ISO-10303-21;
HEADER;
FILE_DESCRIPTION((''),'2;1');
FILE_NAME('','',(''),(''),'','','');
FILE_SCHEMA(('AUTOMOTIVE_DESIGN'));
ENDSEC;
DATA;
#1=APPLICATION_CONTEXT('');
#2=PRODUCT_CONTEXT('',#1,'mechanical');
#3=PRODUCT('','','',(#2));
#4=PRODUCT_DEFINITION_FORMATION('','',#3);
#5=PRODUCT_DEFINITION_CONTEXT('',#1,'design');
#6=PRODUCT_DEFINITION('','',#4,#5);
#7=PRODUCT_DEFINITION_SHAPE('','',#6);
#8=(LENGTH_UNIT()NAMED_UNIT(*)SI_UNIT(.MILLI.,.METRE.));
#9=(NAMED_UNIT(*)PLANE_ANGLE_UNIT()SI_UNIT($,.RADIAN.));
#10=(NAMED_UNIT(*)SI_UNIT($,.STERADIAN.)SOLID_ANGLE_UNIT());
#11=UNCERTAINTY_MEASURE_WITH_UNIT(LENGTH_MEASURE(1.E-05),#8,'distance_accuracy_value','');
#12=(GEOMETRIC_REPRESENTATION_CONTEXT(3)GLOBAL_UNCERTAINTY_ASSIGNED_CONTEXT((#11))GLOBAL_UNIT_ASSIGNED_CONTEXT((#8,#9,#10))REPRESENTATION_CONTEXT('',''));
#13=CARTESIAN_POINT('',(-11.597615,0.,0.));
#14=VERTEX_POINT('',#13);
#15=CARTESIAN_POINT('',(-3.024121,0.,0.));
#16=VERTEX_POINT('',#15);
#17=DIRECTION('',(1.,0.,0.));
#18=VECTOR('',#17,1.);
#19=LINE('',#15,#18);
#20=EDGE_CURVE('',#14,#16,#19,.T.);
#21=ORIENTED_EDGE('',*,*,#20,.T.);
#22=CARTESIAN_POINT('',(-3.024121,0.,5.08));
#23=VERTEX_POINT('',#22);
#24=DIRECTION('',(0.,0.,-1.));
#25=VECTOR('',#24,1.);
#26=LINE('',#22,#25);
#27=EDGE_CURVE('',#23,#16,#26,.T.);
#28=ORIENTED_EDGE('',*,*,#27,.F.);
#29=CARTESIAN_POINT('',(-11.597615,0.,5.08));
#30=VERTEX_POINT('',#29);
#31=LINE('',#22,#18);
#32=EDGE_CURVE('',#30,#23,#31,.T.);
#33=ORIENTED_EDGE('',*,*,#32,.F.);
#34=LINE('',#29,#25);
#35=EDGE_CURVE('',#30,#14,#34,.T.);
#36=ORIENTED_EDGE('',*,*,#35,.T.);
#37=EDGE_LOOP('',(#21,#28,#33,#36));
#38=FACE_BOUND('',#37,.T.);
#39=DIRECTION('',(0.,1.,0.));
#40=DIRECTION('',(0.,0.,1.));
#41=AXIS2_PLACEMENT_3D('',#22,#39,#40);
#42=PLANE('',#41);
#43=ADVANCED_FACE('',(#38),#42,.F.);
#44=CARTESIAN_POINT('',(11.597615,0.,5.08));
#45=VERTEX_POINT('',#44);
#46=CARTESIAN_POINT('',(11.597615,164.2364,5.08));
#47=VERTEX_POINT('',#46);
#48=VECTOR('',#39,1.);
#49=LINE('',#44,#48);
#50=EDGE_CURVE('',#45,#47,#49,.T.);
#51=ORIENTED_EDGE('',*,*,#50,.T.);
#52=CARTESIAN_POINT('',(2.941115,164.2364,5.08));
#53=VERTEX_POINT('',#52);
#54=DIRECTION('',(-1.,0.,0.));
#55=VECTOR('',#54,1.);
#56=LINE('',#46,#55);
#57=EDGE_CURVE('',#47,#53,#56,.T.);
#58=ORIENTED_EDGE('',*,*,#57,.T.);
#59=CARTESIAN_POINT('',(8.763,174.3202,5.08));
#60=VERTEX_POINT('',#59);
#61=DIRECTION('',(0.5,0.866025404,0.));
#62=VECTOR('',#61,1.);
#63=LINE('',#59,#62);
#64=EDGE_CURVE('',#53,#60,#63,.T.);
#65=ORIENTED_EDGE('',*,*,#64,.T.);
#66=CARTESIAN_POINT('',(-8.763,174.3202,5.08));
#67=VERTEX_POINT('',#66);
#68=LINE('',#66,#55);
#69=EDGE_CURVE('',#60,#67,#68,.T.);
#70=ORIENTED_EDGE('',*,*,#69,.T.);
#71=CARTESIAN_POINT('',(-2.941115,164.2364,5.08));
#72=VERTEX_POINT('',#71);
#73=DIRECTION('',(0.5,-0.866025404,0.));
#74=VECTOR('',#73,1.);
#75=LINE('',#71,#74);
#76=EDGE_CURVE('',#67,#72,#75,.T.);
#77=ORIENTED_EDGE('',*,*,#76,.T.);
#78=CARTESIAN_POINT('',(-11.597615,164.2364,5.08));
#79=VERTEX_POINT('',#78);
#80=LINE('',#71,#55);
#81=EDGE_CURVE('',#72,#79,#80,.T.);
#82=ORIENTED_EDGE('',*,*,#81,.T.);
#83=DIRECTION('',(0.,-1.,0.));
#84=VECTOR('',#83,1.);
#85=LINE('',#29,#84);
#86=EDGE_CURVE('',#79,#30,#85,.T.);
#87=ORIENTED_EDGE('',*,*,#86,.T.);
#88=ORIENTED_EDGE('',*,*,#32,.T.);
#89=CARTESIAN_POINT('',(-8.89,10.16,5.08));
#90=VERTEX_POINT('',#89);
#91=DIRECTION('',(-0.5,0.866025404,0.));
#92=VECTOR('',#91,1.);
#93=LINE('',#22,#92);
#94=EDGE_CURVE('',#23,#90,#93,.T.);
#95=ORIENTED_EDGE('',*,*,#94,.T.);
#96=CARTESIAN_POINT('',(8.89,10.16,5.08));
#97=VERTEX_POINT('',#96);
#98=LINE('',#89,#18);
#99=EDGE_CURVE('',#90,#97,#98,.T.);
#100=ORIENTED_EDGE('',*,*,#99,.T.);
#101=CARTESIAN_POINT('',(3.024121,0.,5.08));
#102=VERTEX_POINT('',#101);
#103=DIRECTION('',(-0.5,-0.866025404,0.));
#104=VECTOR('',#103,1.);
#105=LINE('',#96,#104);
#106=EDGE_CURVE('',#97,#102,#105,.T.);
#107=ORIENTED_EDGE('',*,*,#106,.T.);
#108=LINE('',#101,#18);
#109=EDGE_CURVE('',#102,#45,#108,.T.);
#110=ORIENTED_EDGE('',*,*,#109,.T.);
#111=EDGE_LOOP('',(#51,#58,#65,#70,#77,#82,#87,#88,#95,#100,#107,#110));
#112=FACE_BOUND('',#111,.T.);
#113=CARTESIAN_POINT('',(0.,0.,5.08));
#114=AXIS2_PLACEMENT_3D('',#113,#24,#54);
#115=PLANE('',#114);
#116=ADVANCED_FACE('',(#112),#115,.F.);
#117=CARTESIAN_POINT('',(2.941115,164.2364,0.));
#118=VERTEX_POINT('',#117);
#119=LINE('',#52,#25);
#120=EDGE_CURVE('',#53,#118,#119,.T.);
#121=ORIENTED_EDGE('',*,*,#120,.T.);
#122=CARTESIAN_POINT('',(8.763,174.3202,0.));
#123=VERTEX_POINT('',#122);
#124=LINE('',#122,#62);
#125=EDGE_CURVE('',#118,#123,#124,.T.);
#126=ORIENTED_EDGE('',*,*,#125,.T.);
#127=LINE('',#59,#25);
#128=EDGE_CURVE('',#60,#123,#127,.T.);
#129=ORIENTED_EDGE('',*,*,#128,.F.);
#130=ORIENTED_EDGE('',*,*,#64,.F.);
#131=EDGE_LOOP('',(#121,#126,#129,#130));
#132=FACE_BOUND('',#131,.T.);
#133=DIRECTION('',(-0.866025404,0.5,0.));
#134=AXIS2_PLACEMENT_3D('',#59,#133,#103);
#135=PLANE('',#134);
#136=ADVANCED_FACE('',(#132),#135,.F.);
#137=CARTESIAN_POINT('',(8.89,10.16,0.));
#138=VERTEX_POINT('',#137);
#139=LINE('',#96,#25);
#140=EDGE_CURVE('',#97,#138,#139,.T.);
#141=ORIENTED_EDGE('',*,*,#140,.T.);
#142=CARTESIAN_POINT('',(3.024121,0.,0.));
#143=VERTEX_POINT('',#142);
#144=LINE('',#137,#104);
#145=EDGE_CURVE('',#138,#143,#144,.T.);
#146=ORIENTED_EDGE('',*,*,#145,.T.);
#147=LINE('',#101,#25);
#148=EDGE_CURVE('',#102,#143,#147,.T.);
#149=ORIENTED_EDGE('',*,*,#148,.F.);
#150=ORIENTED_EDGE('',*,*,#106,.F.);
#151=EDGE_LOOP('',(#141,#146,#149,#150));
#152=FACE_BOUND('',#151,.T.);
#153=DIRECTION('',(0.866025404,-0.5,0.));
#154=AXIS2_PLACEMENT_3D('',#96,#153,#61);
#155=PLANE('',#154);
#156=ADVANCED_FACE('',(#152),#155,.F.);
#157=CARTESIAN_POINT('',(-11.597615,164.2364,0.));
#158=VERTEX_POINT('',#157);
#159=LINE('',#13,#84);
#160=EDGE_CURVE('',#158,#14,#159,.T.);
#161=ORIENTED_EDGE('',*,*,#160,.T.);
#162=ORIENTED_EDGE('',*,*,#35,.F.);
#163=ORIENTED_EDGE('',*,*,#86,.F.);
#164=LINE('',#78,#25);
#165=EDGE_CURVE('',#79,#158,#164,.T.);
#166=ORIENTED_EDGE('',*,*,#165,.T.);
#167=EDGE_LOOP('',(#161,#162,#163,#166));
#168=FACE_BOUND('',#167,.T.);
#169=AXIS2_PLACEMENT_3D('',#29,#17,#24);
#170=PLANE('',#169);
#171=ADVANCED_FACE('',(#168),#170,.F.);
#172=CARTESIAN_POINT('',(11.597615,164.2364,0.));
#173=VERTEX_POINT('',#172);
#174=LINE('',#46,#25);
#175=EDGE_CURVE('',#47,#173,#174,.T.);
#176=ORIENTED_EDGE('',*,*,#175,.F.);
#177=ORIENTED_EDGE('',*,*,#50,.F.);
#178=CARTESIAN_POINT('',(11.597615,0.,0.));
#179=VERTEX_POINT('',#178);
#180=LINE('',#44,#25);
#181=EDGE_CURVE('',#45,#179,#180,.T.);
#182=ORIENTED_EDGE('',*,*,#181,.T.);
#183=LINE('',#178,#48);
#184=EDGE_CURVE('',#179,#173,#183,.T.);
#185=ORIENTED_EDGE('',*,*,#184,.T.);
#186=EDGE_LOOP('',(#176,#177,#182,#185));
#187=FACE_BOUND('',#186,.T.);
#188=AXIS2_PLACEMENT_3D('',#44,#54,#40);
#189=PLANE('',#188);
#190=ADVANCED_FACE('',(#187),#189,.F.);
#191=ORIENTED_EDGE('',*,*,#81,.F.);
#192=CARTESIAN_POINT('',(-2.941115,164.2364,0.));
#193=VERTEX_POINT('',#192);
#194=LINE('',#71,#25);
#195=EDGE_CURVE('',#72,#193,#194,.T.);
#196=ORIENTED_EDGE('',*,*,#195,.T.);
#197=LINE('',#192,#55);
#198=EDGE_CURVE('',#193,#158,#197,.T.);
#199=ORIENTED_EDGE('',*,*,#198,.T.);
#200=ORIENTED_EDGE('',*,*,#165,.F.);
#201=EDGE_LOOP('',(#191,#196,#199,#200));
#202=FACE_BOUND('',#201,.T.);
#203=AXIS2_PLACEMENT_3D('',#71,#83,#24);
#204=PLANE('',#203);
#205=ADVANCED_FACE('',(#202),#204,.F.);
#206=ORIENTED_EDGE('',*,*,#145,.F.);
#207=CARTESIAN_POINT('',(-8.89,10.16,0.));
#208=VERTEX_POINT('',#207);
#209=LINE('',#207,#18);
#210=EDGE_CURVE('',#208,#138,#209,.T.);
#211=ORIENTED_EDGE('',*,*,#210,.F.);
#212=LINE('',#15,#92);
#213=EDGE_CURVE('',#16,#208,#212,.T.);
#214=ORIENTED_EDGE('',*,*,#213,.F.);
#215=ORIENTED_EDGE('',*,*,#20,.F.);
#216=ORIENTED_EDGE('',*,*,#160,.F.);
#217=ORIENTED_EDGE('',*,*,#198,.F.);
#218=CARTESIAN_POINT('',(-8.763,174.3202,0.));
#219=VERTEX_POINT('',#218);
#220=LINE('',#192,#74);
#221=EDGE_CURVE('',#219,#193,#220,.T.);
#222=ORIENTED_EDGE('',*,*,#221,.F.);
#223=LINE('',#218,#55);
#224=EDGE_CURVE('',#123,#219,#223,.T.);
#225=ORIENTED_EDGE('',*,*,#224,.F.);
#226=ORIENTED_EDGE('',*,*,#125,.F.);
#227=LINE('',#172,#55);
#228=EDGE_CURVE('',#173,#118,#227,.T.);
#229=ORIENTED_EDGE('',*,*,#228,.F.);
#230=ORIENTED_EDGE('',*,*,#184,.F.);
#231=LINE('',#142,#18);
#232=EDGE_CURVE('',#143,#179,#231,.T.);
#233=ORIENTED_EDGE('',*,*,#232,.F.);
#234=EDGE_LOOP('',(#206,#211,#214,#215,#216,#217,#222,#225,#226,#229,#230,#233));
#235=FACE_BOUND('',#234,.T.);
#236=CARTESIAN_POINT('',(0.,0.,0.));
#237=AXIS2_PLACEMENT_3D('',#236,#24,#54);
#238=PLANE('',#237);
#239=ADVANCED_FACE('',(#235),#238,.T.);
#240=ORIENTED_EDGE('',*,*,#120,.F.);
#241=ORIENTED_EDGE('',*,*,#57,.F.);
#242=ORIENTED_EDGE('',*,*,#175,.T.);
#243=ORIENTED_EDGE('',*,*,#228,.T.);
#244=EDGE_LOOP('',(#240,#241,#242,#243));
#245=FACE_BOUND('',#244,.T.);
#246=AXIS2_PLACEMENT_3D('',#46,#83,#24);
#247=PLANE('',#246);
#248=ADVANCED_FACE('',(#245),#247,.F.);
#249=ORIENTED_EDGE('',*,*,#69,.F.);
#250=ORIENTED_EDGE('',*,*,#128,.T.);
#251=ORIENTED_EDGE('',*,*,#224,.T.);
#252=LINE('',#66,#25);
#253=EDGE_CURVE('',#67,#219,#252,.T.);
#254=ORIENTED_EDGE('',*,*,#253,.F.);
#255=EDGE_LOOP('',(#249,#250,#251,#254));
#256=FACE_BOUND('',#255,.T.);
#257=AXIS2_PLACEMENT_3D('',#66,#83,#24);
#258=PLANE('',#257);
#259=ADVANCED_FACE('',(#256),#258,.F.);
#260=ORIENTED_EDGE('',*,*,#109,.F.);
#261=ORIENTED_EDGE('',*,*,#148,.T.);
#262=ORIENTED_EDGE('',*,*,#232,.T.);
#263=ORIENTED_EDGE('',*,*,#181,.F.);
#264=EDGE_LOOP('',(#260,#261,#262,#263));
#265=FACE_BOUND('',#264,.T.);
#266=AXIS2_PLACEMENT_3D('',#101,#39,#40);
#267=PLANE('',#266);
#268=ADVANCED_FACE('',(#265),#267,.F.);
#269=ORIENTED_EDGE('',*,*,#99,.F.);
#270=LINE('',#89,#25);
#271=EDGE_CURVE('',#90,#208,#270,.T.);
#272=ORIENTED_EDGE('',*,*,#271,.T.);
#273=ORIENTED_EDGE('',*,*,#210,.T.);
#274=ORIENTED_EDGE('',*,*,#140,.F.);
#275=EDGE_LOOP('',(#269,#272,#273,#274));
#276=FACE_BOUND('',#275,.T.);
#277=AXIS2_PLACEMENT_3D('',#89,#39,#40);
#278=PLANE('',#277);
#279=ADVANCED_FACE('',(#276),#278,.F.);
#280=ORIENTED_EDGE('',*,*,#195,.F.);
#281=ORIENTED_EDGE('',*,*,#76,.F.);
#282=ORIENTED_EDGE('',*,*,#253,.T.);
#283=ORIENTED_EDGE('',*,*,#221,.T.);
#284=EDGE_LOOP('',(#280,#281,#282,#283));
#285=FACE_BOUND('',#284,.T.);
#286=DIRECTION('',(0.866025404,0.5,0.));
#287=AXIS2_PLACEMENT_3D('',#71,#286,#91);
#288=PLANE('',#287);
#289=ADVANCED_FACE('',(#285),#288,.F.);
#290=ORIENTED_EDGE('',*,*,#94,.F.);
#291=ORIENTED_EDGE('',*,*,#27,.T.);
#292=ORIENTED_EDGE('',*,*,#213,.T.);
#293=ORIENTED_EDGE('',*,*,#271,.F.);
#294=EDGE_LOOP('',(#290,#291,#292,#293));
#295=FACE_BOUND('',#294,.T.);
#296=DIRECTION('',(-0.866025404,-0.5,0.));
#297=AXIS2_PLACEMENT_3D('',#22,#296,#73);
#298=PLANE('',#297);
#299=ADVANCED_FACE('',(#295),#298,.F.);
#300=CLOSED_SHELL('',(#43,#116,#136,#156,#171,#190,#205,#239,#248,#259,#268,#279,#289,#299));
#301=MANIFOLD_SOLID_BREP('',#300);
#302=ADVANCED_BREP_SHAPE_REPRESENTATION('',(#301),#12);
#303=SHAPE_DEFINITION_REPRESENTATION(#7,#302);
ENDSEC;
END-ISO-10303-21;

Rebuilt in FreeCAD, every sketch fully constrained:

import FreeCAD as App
import Part
import Sketcher

V = App.Vector
Q = App.Units.Quantity


def add_polygon(sketch, points):
    """Adds a closed chain of lines whose ends are joined by coincident constraints."""
    first, n = sketch.GeometryCount, len(points)
    for a, b in zip(points, points[1:] + points[:1]):
        sketch.addGeometry(Part.LineSegment(App.Vector(*a, 0), App.Vector(*b, 0)), False)
    for i in range(n):
        sketch.addConstraint(Sketcher.Constraint("Coincident", first + i, 2, first + (i + 1) % n, 1))

doc = App.newDocument("Part")
body = doc.addObject("PartDesign::Body", "Body")

sketch1 = doc.addObject("Sketcher::SketchObject", "Sketch")
body.addObject(sketch1)
sketch1.AttachmentSupport = (doc.XY_Plane, [""])
sketch1.MapMode = "FlatFace"
add_polygon(sketch1, [(-3, 0), (-9, 10), (9, 10), (3, 0), (12, 0), (12, 164), (3, 164), (9, 174), (-9, 174), (-3, 164), (-12, 164), (-12, 0)])
sketch1.addConstraint(Sketcher.Constraint("Horizontal", 1))
sketch1.addConstraint(Sketcher.Constraint("Horizontal", 3))
sketch1.addConstraint(Sketcher.Constraint("Vertical", 4))
sketch1.addConstraint(Sketcher.Constraint("Horizontal", 5))
sketch1.addConstraint(Sketcher.Constraint("Horizontal", 7))
sketch1.addConstraint(Sketcher.Constraint("Horizontal", 9))
sketch1.addConstraint(Sketcher.Constraint("Vertical", 10))
sketch1.addConstraint(Sketcher.Constraint("Horizontal", 11))
sketch1.addConstraint(Sketcher.Constraint("Symmetric", 3, 2, 10, 2, -1, 1))
sketch1.addConstraint(Sketcher.Constraint("Symmetric", 5, 2, 8, 2, -2))
sketch1.addConstraint(Sketcher.Constraint("Symmetric", 2, 2, 11, 2, -2))
sketch1.addConstraint(Sketcher.Constraint("Parallel", 2, 6))
sketch1.addConstraint(Sketcher.Constraint("Parallel", 0, 8))
sketch1.addConstraint(Sketcher.Constraint("Equal", 0, 2))
sketch1.addConstraint(Sketcher.Constraint("DistanceX", 1, 1, 1, 2, Q("0.7 in")))
sketch1.addConstraint(Sketcher.Constraint("Angle", 0, Q("120 deg")))
sketch1.addConstraint(Sketcher.Constraint("DistanceX", 7, 2, 7, 1, Q("0.69 in")))
sketch1.addConstraint(Sketcher.Constraint("DistanceY", -1, 1, 0, 2, Q("0.4 in")))
sketch1.addConstraint(Sketcher.Constraint("DistanceY", 4, 1, 4, 2, Q("6.466 in")))
sketch1.addConstraint(Sketcher.Constraint("DistanceY", -1, 1, 6, 2, Q("6.863 in")))
sketch1.addConstraint(Sketcher.Constraint("DistanceX", 5, 2, 5, 1, Q("8.656499 mm")))
pad1 = doc.addObject("PartDesign::Pad", "Pad")
body.addObject(pad1)
pad1.Profile = sketch1
pad1.Length = Q("0.2 in")

doc.recompute()
